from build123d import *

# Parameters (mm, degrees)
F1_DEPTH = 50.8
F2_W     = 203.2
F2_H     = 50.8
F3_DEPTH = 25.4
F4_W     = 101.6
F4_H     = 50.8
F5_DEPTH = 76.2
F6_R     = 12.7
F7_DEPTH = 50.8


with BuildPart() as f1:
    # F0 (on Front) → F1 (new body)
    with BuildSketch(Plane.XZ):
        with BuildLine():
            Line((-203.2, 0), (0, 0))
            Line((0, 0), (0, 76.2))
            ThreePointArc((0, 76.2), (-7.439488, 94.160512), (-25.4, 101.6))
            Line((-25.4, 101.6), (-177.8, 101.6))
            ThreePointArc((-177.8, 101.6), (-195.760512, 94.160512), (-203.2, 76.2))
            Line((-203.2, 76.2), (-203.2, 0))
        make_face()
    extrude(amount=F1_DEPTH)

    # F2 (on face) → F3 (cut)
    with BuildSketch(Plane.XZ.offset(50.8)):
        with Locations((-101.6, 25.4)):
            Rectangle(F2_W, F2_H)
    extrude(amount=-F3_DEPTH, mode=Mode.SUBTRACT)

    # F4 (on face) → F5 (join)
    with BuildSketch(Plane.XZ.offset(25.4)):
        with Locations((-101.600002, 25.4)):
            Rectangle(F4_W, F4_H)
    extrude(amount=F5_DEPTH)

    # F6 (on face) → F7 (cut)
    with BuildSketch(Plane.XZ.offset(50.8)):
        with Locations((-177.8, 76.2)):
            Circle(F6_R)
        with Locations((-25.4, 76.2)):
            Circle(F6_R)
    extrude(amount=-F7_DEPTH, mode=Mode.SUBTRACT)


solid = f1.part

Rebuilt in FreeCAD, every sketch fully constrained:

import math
import FreeCAD as App
import Part
import Sketcher
Q = App.Units.Quantity

doc = App.newDocument("Part")
params = doc.addObject("Spreadsheet::Sheet", "Params")
for row, (alias, value) in enumerate([
    ("sketch1_radius", "1 in"),
    ("sketch1_width", "8 in"),
    ("sketch1_height", "3 in"),
    ("pad1_length", "2 in"),
    ("sketch2_width", "8 in"),
    ("sketch2_height", "2 in"),
    ("pocket1_length", "1 in"),
    ("sketch3_width", "4 in"),
    ("sketch3_height", "2 in"),
    ("pad2_length", "3 in"),
    ("sketch4_diameter", "1 in"),
    ("pocket2_length", "2 in"),
], start=1):
    params.set(f"A{row}", alias)
    params.set(f"B{row}", "=" + value)
    params.setAlias(f"B{row}", alias)

body = doc.addObject("PartDesign::Body", "Body")

# Sketch on XZ plane
sketch1 = body.newObject("Sketcher::SketchObject", "Sketch")
sketch1.AttachmentSupport = (doc.getObject("XZ_Plane"), [""])
sketch1.MapMode = "FlatFace"
sketch1.addGeometry(Part.LineSegment(App.Vector(-203, 0, 0), App.Vector(0, 0, 0)), False)
sketch1.addGeometry(Part.LineSegment(App.Vector(0, 0, 0), App.Vector(0, 76, 0)), False)
sketch1.addGeometry(Part.ArcOfCircle(Part.Circle(App.Vector(-25, 76, 0), App.Vector(0, 0, 1), 25), math.radians(0), math.radians(90)), False)
sketch1.addGeometry(Part.LineSegment(App.Vector(-25, 102, 0), App.Vector(-178, 102, 0)), False)
sketch1.addGeometry(Part.ArcOfCircle(Part.Circle(App.Vector(-178, 76, 0), App.Vector(0, 0, 1), 25), math.radians(90), math.radians(180)), False)
sketch1.addGeometry(Part.LineSegment(App.Vector(-203, 76, 0), App.Vector(-203, 0, 0)), False)
sketch1.addConstraint(Sketcher.Constraint("Coincident", 0, 2, 1, 1))
sketch1.addConstraint(Sketcher.Constraint("Tangent", 1, 2, 2, 1))
sketch1.addConstraint(Sketcher.Constraint("Tangent", 2, 2, 3, 1))
sketch1.addConstraint(Sketcher.Constraint("Tangent", 3, 2, 4, 1))
sketch1.addConstraint(Sketcher.Constraint("Tangent", 4, 2, 5, 1))
sketch1.addConstraint(Sketcher.Constraint("Coincident", 5, 2, 0, 1))
sketch1.addConstraint(Sketcher.Constraint("Horizontal", 0))
sketch1.addConstraint(Sketcher.Constraint("Vertical", 1))
sketch1.addConstraint(Sketcher.Constraint("Horizontal", 3))
sketch1.addConstraint(Sketcher.Constraint("Vertical", 5))
sketch1.addConstraint(Sketcher.Constraint("Coincident", 0, 2, -1, 1))
sketch1.addConstraint(Sketcher.Constraint("Equal", 2, 4))
sketch1.addConstraint(Sketcher.Constraint("Radius", 2, Q("1 in")))
sketch1.addConstraint(Sketcher.Constraint("DistanceX", 0, 1, 0, 2, Q("8 in")))
sketch1.addConstraint(Sketcher.Constraint("DistanceY", 1, 1, 1, 2, Q("3 in")))
sketch1.setExpression("Constraints[12]", "Params.sketch1_radius")
sketch1.setExpression("Constraints[13]", "Params.sketch1_width")
sketch1.setExpression("Constraints[14]", "Params.sketch1_height")
pad1 = body.newObject("PartDesign::Pad", "Pad")
pad1.Profile = sketch1
pad1.setExpression("Length", "Params.pad1_length")

# Sketch on XZ plane
sketch2 = body.newObject("Sketcher::SketchObject", "Sketch001")
sketch2.AttachmentSupport = (doc.getObject("XZ_Plane"), [""])
sketch2.MapMode = "FlatFace"
sketch2.AttachmentOffset = App.Placement(App.Vector(0, 0, 2 * 25.4), App.Rotation())
sketch2.addGeometry(Part.LineSegment(App.Vector(-203, 51, 0), App.Vector(-203, 0, 0)), False)
sketch2.addGeometry(Part.LineSegment(App.Vector(-203, 0, 0), App.Vector(0, 0, 0)), False)
sketch2.addGeometry(Part.LineSegment(App.Vector(0, 0, 0), App.Vector(0, 51, 0)), False)
sketch2.addGeometry(Part.LineSegment(App.Vector(0, 51, 0), App.Vector(-203, 51, 0)), False)
sketch2.addConstraint(Sketcher.Constraint("Coincident", 0, 2, 1, 1))
sketch2.addConstraint(Sketcher.Constraint("Coincident", 1, 2, 2, 1))
sketch2.addConstraint(Sketcher.Constraint("Coincident", 2, 2, 3, 1))
sketch2.addConstraint(Sketcher.Constraint("Coincident", 3, 2, 0, 1))
sketch2.addConstraint(Sketcher.Constraint("Vertical", 0))
sketch2.addConstraint(Sketcher.Constraint("Horizontal", 1))
sketch2.addConstraint(Sketcher.Constraint("Vertical", 2))
sketch2.addConstraint(Sketcher.Constraint("Horizontal", 3))
sketch2.addConstraint(Sketcher.Constraint("Coincident", 1, 2, -1, 1))
sketch2.addConstraint(Sketcher.Constraint("DistanceX", 1, 1, 1, 2, Q("8 in")))
sketch2.addConstraint(Sketcher.Constraint("DistanceY", 0, 2, 0, 1, Q("2 in")))
sketch2.setExpression("Constraints[9]", "Params.sketch2_width")
sketch2.setExpression("Constraints[10]", "Params.sketch2_height")
pocket1 = body.newObject("PartDesign::Pocket", "Pocket")
pocket1.Profile = sketch2
pocket1.setExpression("Length", "Params.pocket1_length")

# Sketch on XZ plane
sketch3 = body.newObject("Sketcher::SketchObject", "Sketch002")
sketch3.AttachmentSupport = (doc.getObject("XZ_Plane"), [""])
sketch3.MapMode = "FlatFace"
sketch3.AttachmentOffset = App.Placement(App.Vector(0, 0, 1 * 25.4), App.Rotation())
sketch3.addGeometry(Part.LineSegment(App.Vector(-152, 51, 0), App.Vector(-152, 0, 0)), False)
sketch3.addGeometry(Part.LineSegment(App.Vector(-152, 0, 0), App.Vector(-51, 0, 0)), False)
sketch3.addGeometry(Part.LineSegment(App.Vector(-51, 0, 0), App.Vector(-51, 51, 0)), False)
sketch3.addGeometry(Part.LineSegment(App.Vector(-51, 51, 0), App.Vector(-152, 51, 0)), False)
sketch3.addConstraint(Sketcher.Constraint("Coincident", 0, 2, 1, 1))
sketch3.addConstraint(Sketcher.Constraint("Coincident", 1, 2, 2, 1))
sketch3.addConstraint(Sketcher.Constraint("Coincident", 2, 2, 3, 1))
sketch3.addConstraint(Sketcher.Constraint("Coincident", 3, 2, 0, 1))
sketch3.addConstraint(Sketcher.Constraint("Vertical", 0))
sketch3.addConstraint(Sketcher.Constraint("Horizontal", 1))
sketch3.addConstraint(Sketcher.Constraint("Vertical", 2))
sketch3.addConstraint(Sketcher.Constraint("Horizontal", 3))
sketch3.addConstraint(Sketcher.Constraint("PointOnObject", 0, 2, -1))
sketch3.addConstraint(Sketcher.Constraint("DistanceX", 1, 1, 1, 2, Q("4 in")))
sketch3.addConstraint(Sketcher.Constraint("DistanceY", 0, 2, 0, 1, Q("2 in")))
sketch3.addConstraint(Sketcher.Constraint("DistanceX", 0, 2, -1, 1, Q("6.0000001 in")))
sketch3.setExpression("Constraints[9]", "Params.sketch3_width")
sketch3.setExpression("Constraints[10]", "Params.sketch3_height")
pad2 = body.newObject("PartDesign::Pad", "Pad001")
pad2.Profile = sketch3
pad2.setExpression("Length", "Params.pad2_length")

# Sketch on XZ plane
sketch4 = body.newObject("Sketcher::SketchObject", "Sketch003")
sketch4.AttachmentSupport = (doc.getObject("XZ_Plane"), [""])
sketch4.MapMode = "FlatFace"
sketch4.AttachmentOffset = App.Placement(App.Vector(0, 0, 2 * 25.4), App.Rotation())
sketch4.addGeometry(Part.Circle(App.Vector(-178, 76, 0), App.Vector(0, 0, 1), 13), False)
sketch4.addGeometry(Part.Circle(App.Vector(-25, 76, 0), App.Vector(0, 0, 1), 13), False)
sketch4.addConstraint(Sketcher.Constraint("Equal", 0, 1))
sketch4.addConstraint(Sketcher.Constraint("Horizontal", 0, 3, 1, 3))
sketch4.addConstraint(Sketcher.Constraint("Diameter", 0, Q("1 in")))
sketch4.addConstraint(Sketcher.Constraint("DistanceX", 0, 3, -1, 1, Q("7 in")))
sketch4.addConstraint(Sketcher.Constraint("DistanceY", -1, 1, 0, 3, Q("3 in")))
sketch4.addConstraint(Sketcher.Constraint("DistanceX", 1, 3, -1, 1, Q("1 in")))
sketch4.setExpression("Constraints[2]", "Params.sketch4_diameter")
pocket2 = body.newObject("PartDesign::Pocket", "Pocket001")
pocket2.Profile = sketch4
pocket2.setExpression("Length", "Params.pocket2_length")

doc.recompute()
